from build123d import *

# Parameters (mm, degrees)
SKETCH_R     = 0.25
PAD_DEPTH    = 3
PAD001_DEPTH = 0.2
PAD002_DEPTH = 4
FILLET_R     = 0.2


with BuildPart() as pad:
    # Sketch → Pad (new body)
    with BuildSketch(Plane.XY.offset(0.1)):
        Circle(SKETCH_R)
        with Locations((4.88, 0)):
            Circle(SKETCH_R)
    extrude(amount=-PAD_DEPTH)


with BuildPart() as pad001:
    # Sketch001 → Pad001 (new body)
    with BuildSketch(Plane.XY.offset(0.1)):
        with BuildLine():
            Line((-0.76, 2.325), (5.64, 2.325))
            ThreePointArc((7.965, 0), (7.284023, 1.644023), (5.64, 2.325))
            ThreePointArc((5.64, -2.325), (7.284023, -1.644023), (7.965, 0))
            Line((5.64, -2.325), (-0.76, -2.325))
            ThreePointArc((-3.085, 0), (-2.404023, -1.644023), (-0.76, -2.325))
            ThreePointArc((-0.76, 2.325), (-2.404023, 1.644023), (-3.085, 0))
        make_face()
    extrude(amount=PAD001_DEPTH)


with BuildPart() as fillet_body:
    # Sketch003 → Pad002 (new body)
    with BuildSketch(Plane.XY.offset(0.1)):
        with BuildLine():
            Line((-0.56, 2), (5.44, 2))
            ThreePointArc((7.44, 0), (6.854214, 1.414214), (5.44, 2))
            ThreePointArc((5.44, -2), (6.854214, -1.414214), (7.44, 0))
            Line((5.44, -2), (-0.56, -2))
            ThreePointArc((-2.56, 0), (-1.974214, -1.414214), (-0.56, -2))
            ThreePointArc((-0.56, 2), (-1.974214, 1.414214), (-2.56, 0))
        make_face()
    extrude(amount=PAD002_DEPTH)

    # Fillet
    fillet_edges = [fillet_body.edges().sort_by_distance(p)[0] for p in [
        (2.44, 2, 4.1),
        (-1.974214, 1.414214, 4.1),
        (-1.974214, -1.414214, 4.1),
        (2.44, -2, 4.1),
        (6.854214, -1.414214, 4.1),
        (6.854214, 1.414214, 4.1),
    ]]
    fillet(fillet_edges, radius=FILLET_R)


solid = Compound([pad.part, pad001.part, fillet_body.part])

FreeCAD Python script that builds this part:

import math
import FreeCAD as App
import Part
import Sketcher

V = App.Vector
Q = App.Units.Quantity


def edges_at(feature, points):
    """Names of the edges that pass closest to the given points."""
    edges = feature.Shape.Edges
    near = lambda p: min(range(len(edges)), key=lambda i: edges[i].distToShape(Part.Vertex(*p))[0])
    return sorted({f"Edge{near(p) + 1}" for p in points})

doc = App.newDocument("Part")
body = doc.addObject("PartDesign::Body", "Body")
body.AllowCompound = True

# Sketch on XY plane
sketch1 = body.newObject("Sketcher::SketchObject", "Sketch")
sketch1.AttachmentSupport = (doc.getObject("XY_Plane"), [""])
sketch1.MapMode = "FlatFace"
sketch1.AttachmentOffset = App.Placement(V(0, 0, 0.1), App.Rotation())
sketch1.addGeometry(Part.Circle(V(0, 0, 0), V(0, 0, 1), 0.25), False)
sketch1.addGeometry(Part.Circle(V(4.88, 0, 0), V(0, 0, 1), 0.25), False)
sketch1.addConstraint(Sketcher.Constraint("Coincident", 0, 3, -1, 1))
sketch1.addConstraint(Sketcher.Constraint("Equal", 0, 1))
sketch1.addConstraint(Sketcher.Constraint("PointOnObject", 1, 3, -1))
sketch1.addConstraint(Sketcher.Constraint("Diameter", 0, Q("0.5 mm")))
sketch1.addConstraint(Sketcher.Constraint("DistanceX", -1, 1, 1, 3, Q("4.88 mm")))
pad1 = body.newObject("PartDesign::Pad", "Pad")
pad1.Profile = sketch1
pad1.Length = 3
pad1.Reversed = True
body2 = doc.addObject("PartDesign::Body", "Body001")

# Sketch on XY plane
sketch2 = body2.newObject("Sketcher::SketchObject", "Sketch001")
sketch2.AttachmentSupport = (doc.getObject("XY_Plane001"), [""])
sketch2.MapMode = "FlatFace"
sketch2.AttachmentOffset = App.Placement(V(0, 0, 0.1), App.Rotation())
sketch2.addGeometry(Part.LineSegment(V(5.64, 2.325, 0), V(-0.76, 2.325, 0)), False)
sketch2.addGeometry(Part.ArcOfCircle(Part.Circle(V(-0.759999, -0.000001, 0), V(0, 0, 1), 2.325001), math.radians(90.000022), math.radians(179.999978)), False)
sketch2.addGeometry(Part.ArcOfCircle(Part.Circle(V(-0.759999, 0.000001, 0), V(0, 0, 1), 2.325001), math.radians(-179.999978), math.radians(-90.000022)), False)
sketch2.addGeometry(Part.LineSegment(V(-0.76, -2.325, 0), V(5.64, -2.325, 0)), False)
sketch2.addGeometry(Part.ArcOfCircle(Part.Circle(V(5.639999, 0.000001, 0), V(0, 0, 1), 2.325001), math.radians(-89.999978), math.radians(-0.000022)), False)
sketch2.addGeometry(Part.ArcOfCircle(Part.Circle(V(5.639999, -0.000001, 0), V(0, 0, 1), 2.325001), math.radians(0.000022), math.radians(89.999978)), False)
sketch2.addConstraint(Sketcher.Constraint("Tangent", 0, 2, 1, 1))
sketch2.addConstraint(Sketcher.Constraint("Tangent", 1, 2, 2, 1))
sketch2.addConstraint(Sketcher.Constraint("Tangent", 2, 2, 3, 1))
sketch2.addConstraint(Sketcher.Constraint("Tangent", 3, 2, 4, 1))
sketch2.addConstraint(Sketcher.Constraint("Tangent", 4, 2, 5, 1))
sketch2.addConstraint(Sketcher.Constraint("Tangent", 5, 2, 0, 1))
sketch2.addConstraint(Sketcher.Constraint("Horizontal", 0))
sketch2.addConstraint(Sketcher.Constraint("Horizontal", 3))
sketch2.addConstraint(Sketcher.Constraint("Equal", 1, 2))
sketch2.addConstraint(Sketcher.Constraint("Equal", 2, 4))
sketch2.addConstraint(Sketcher.Constraint("PointOnObject", 1, 3, -1))
sketch2.addConstraint(Sketcher.Constraint("PointOnObject", 1, 2, -1))
sketch2.addConstraint(Sketcher.Constraint("PointOnObject", 4, 2, -1))
sketch2.addConstraint(Sketcher.Constraint("DistanceX", 0, 2, 0, 1, Q("6.4 mm")))
sketch2.addConstraint(Sketcher.Constraint("Radius", 1, Q("2.325001 mm")))
sketch2.addConstraint(Sketcher.Constraint("DistanceX", 1, 3, -1, 1, Q("0.759999 mm")))
pad2 = body2.newObject("PartDesign::Pad", "Pad001")
pad2.Profile = sketch2
pad2.Length = 0.2
body3 = doc.addObject("PartDesign::Body", "Body002")

# Sketch on XY plane
sketch3 = body3.newObject("Sketcher::SketchObject", "Sketch002")
sketch3.AttachmentSupport = (doc.getObject("XY_Plane002"), [""])
sketch3.MapMode = "FlatFace"
sketch3.AttachmentOffset = App.Placement(V(0, 0, 0.1), App.Rotation())
sketch3.addGeometry(Part.LineSegment(V(5.44, 2, 0), V(-0.56, 2, 0)), False)
sketch3.addGeometry(Part.ArcOfCircle(Part.Circle(V(-0.560001, 0.000001, 0), V(0, 0, 1), 1.999999), math.radians(89.999957), math.radians(180.000043)), False)
sketch3.addGeometry(Part.ArcOfCircle(Part.Circle(V(-0.560001, -0.000001, 0), V(0, 0, 1), 1.999999), math.radians(179.999957), math.radians(270.000043)), False)
sketch3.addGeometry(Part.LineSegment(V(-0.56, -2, 0), V(5.44, -2, 0)), False)
sketch3.addGeometry(Part.ArcOfCircle(Part.Circle(V(5.440001, -0.000001, 0), V(0, 0, 1), 1.999999), math.radians(-90.000043), math.radians(0.000043)), False)
sketch3.addGeometry(Part.ArcOfCircle(Part.Circle(V(5.440001, 0.000001, 0), V(0, 0, 1), 1.999999), math.radians(-0.000043), math.radians(90.000043)), False)
sketch3.addConstraint(Sketcher.Constraint("Tangent", 0, 2, 1, 1))
sketch3.addConstraint(Sketcher.Constraint("Tangent", 1, 2, 2, 1))
sketch3.addConstraint(Sketcher.Constraint("Tangent", 2, 2, 3, 1))
sketch3.addConstraint(Sketcher.Constraint("Tangent", 3, 2, 4, 1))
sketch3.addConstraint(Sketcher.Constraint("Tangent", 4, 2, 5, 1))
sketch3.addConstraint(Sketcher.Constraint("Tangent", 5, 2, 0, 1))
sketch3.addConstraint(Sketcher.Constraint("Horizontal", 0))
sketch3.addConstraint(Sketcher.Constraint("Horizontal", 3))
sketch3.addConstraint(Sketcher.Constraint("Equal", 1, 2))
sketch3.addConstraint(Sketcher.Constraint("Equal", 2, 4))
sketch3.addConstraint(Sketcher.Constraint("PointOnObject", 1, 3, -1))
sketch3.addConstraint(Sketcher.Constraint("PointOnObject", 1, 2, -1))
sketch3.addConstraint(Sketcher.Constraint("PointOnObject", 4, 2, -1))
sketch3.addConstraint(Sketcher.Constraint("Radius", 1, Q("1.999999 mm")))
sketch3.addConstraint(Sketcher.Constraint("DistanceX", 0, 2, 0, 1, Q("6 mm")))
sketch3.addConstraint(Sketcher.Constraint("DistanceX", 1, 3, -1, 1, Q("0.560001 mm")))
pad3 = body3.newObject("PartDesign::Pad", "Pad002")
pad3.Profile = sketch3
pad3.Length = 4
doc.recompute()

fillet = body3.newObject("PartDesign::Fillet", "Fillet")
fillet.Base = (pad3, edges_at(pad3, [
    (2.44, 2, 4.1),
    (-1.974, 1.414, 4.1),
    (-1.974, -1.414, 4.1),
    (2.44, -2, 4.1),
    (6.854, -1.414, 4.1),
    (6.854, 1.414, 4.1),
]))
fillet.Radius = 0.2

doc.recompute()
